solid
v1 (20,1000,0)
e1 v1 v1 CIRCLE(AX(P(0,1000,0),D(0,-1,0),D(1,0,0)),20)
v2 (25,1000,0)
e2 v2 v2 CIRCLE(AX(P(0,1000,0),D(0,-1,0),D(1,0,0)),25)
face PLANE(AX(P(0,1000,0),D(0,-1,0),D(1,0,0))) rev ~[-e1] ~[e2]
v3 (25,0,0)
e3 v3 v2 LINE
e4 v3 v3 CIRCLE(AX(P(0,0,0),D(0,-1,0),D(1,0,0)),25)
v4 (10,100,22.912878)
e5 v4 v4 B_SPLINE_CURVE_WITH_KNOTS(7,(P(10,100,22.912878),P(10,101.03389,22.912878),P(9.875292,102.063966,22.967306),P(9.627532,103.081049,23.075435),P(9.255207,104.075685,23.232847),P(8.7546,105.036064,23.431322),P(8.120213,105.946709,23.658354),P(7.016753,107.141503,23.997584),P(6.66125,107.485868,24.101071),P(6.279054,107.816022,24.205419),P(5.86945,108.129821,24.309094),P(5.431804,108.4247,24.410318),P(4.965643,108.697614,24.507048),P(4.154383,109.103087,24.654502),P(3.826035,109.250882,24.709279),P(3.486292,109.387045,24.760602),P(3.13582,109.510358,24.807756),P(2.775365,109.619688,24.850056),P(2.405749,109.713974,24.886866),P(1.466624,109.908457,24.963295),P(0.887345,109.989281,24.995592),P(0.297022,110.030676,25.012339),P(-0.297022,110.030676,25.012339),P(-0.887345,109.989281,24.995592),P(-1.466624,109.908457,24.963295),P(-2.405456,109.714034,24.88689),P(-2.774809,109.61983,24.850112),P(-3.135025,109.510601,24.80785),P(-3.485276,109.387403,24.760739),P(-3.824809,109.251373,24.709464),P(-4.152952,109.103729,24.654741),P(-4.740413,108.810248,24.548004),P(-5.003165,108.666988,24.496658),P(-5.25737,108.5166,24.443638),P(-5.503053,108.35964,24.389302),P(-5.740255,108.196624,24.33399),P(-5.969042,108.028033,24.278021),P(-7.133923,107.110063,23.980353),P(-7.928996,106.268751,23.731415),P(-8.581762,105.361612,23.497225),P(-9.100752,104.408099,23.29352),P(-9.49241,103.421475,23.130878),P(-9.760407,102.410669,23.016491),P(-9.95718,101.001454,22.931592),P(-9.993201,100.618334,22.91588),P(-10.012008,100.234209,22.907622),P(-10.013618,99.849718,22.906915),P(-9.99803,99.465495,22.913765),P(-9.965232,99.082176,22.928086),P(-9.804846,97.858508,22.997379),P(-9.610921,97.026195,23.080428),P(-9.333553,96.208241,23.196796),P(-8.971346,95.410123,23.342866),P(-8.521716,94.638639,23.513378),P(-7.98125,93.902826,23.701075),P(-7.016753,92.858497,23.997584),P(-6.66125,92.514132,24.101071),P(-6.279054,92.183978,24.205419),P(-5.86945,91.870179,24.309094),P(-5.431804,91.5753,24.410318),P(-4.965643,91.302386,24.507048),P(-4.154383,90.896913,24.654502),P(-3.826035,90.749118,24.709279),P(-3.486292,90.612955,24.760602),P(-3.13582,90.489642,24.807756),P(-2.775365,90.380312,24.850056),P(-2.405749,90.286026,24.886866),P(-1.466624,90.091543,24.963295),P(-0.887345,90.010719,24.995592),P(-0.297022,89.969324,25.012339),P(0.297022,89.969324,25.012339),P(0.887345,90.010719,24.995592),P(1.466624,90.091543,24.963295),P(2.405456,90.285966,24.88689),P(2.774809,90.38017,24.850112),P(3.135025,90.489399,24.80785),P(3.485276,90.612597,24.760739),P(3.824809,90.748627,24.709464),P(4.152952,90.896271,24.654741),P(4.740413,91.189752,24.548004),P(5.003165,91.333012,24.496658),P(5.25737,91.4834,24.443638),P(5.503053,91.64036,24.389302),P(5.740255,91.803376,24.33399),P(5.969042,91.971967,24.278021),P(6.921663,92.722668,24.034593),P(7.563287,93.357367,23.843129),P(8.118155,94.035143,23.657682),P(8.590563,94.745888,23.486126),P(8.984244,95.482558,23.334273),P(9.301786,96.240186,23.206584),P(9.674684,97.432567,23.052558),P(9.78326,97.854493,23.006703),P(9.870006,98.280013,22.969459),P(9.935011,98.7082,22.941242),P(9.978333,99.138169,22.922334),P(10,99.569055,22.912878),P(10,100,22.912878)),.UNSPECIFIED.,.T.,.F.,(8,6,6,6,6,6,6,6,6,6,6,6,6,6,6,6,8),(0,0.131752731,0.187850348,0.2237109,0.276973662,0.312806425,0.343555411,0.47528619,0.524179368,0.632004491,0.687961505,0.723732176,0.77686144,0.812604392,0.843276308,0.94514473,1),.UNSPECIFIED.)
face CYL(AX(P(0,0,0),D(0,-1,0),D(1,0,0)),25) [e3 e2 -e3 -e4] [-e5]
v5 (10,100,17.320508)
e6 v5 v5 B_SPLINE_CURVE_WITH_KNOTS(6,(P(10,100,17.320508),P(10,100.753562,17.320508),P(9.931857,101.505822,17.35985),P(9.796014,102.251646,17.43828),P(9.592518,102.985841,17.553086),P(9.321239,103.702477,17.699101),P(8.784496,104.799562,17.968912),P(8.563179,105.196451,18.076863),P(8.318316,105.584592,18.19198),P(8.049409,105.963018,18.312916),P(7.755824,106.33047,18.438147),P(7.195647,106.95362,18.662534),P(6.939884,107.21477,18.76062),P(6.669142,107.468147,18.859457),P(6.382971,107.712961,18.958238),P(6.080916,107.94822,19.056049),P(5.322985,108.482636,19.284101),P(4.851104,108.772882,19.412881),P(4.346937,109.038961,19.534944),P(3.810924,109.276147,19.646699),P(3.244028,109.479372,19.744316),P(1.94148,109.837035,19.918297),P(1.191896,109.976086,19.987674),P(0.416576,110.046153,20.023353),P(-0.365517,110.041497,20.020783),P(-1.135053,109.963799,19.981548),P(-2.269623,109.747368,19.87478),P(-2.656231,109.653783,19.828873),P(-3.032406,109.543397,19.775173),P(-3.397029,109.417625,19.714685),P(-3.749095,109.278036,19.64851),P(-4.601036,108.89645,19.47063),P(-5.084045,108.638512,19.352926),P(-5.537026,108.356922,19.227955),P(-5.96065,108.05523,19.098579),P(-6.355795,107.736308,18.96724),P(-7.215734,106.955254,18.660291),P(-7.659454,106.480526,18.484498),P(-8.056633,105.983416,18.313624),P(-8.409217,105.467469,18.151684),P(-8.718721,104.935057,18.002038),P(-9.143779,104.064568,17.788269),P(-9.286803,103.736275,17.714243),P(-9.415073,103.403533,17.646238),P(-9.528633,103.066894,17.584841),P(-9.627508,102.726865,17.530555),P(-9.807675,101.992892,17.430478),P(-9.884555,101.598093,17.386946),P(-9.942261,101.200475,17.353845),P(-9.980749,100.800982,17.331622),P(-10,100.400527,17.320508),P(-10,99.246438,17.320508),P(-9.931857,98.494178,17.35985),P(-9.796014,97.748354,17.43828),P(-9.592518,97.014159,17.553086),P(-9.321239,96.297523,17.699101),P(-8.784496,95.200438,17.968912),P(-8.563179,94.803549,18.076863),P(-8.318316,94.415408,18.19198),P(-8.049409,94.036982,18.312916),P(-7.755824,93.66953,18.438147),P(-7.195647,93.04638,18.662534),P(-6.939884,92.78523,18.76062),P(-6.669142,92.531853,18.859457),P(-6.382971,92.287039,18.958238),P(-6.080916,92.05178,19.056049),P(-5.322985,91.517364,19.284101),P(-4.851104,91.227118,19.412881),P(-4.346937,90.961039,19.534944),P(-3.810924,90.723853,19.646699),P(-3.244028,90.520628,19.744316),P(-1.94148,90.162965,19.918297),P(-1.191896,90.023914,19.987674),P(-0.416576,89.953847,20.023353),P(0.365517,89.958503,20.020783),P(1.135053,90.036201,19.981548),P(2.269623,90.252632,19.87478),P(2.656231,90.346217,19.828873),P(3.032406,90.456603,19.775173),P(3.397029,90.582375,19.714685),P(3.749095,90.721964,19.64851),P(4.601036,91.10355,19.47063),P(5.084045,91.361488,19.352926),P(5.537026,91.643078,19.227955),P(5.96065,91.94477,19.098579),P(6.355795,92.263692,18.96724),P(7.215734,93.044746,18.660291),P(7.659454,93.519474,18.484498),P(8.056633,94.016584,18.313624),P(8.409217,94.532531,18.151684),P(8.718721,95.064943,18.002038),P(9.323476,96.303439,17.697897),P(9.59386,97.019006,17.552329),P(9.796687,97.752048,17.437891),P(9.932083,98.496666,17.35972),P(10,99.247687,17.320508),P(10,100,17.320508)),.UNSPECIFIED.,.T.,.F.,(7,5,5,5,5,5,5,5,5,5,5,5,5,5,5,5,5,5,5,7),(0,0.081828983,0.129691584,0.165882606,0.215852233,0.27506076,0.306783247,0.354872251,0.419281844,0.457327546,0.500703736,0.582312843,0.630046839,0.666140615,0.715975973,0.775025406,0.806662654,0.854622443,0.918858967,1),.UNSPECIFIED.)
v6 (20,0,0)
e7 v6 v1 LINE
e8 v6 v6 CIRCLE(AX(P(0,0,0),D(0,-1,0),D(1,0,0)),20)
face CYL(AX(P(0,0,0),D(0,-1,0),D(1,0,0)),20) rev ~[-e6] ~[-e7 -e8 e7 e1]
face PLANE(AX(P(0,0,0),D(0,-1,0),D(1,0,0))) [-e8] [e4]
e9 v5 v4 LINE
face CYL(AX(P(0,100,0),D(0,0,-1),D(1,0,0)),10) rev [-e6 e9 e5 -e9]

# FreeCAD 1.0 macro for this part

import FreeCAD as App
import Part
import Sketcher
from FreeCAD import Vector
Q = App.Units.Quantity

doc = App.newDocument("Part")
body = doc.addObject("PartDesign::Body", "Body")

sketch1 = body.newObject("Sketcher::SketchObject", "Sketch")
sketch1.AttachmentSupport = (doc.getObject("XZ_Plane"), [""])
sketch1.MapMode = "FlatFace"
sketch1.addGeometry(Part.Circle(Vector(0, 0, 0), Vector(0, 0, 1), 25), False)
sketch1.addConstraint([
    Sketcher.Constraint("Coincident", 0, 3, -1, 1),
    Sketcher.Constraint("Diameter", 0, Q("50 mm")),
])
pad1 = body.newObject("PartDesign::Pad", "Pad")
pad1.Profile = sketch1
pad1.Length = 1000
pad1.Reversed = True

sketch2 = body.newObject("Sketcher::SketchObject", "Sketch001")
sketch2.AttachmentSupport = (doc.getObject("XZ_Plane"), [""])
sketch2.MapMode = "FlatFace"
sketch2.addGeometry(Part.Circle(Vector(0, 0, 0), Vector(0, 0, 1), 20), False)
sketch2.addConstraint([
    Sketcher.Constraint("Coincident", 0, 3, -1, 1),
    Sketcher.Constraint("Diameter", 0, Q("40 mm")),
])
pocket1 = body.newObject("PartDesign::Pocket", "Pocket")
pocket1.Profile = sketch2
pocket1.Type = "ThroughAll"

sketch3 = body.newObject("Sketcher::SketchObject", "Sketch002")
sketch3.AttachmentSupport = (doc.getObject("XY_Plane"), [""])
sketch3.MapMode = "FlatFace"
sketch3.addGeometry(Part.Circle(Vector(0, 100, 0), Vector(0, 0, 1), 10), False)
sketch3.addConstraint([
    Sketcher.Constraint("PointOnObject", 0, 3, -2),
    Sketcher.Constraint("Diameter", 0, Q("20 mm")),
    Sketcher.Constraint("DistanceY", -1, 1, 0, 3, Q("100 mm")),
])
pocket2 = body.newObject("PartDesign::Pocket", "Pocket001")
pocket2.Profile = sketch3
pocket2.Length = 25.4
pocket2.Reversed = True

doc.recompute()
